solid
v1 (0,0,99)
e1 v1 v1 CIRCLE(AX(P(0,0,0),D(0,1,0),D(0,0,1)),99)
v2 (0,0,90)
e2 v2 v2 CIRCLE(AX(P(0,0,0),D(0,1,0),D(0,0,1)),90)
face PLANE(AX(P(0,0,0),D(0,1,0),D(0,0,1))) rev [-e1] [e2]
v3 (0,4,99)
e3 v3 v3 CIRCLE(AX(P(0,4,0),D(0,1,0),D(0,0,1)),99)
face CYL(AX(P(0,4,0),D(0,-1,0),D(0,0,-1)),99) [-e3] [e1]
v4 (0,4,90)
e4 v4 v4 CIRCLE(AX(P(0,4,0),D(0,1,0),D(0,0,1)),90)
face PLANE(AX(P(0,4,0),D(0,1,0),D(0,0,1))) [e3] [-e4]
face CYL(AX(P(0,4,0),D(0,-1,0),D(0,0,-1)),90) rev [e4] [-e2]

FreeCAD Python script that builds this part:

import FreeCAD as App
import Part
import Sketcher
from FreeCAD import Vector

doc = App.newDocument("Part")
body = doc.addObject("PartDesign::Body", "Body")

sketch1 = body.newObject("Sketcher::SketchObject", "Sketch")
sketch1.AttachmentSupport = (doc.getObject("XZ_Plane"), [""])
sketch1.MapMode = "FlatFace"
sketch1.addGeometry([
    Part.Circle(Vector(0, 0, 0), Vector(0, 0, 1), 99),
    Part.Circle(Vector(0, 0, 0), Vector(0, 0, 1), 90),
], False)
sketch1.addConstraint([
    Sketcher.Constraint("Coincident", 0, 3, -1, 1),
    Sketcher.Constraint("Coincident", 1, 3, -1, 1),
    Sketcher.Constraint("Diameter", 0, 198.0),
    Sketcher.Constraint("Diameter", 1, 180.0),
])
pad1 = body.newObject("PartDesign::Pad", "Pad")
pad1.Profile = sketch1
pad1.Length = 4
pad1.Reversed = True

doc.recompute()
